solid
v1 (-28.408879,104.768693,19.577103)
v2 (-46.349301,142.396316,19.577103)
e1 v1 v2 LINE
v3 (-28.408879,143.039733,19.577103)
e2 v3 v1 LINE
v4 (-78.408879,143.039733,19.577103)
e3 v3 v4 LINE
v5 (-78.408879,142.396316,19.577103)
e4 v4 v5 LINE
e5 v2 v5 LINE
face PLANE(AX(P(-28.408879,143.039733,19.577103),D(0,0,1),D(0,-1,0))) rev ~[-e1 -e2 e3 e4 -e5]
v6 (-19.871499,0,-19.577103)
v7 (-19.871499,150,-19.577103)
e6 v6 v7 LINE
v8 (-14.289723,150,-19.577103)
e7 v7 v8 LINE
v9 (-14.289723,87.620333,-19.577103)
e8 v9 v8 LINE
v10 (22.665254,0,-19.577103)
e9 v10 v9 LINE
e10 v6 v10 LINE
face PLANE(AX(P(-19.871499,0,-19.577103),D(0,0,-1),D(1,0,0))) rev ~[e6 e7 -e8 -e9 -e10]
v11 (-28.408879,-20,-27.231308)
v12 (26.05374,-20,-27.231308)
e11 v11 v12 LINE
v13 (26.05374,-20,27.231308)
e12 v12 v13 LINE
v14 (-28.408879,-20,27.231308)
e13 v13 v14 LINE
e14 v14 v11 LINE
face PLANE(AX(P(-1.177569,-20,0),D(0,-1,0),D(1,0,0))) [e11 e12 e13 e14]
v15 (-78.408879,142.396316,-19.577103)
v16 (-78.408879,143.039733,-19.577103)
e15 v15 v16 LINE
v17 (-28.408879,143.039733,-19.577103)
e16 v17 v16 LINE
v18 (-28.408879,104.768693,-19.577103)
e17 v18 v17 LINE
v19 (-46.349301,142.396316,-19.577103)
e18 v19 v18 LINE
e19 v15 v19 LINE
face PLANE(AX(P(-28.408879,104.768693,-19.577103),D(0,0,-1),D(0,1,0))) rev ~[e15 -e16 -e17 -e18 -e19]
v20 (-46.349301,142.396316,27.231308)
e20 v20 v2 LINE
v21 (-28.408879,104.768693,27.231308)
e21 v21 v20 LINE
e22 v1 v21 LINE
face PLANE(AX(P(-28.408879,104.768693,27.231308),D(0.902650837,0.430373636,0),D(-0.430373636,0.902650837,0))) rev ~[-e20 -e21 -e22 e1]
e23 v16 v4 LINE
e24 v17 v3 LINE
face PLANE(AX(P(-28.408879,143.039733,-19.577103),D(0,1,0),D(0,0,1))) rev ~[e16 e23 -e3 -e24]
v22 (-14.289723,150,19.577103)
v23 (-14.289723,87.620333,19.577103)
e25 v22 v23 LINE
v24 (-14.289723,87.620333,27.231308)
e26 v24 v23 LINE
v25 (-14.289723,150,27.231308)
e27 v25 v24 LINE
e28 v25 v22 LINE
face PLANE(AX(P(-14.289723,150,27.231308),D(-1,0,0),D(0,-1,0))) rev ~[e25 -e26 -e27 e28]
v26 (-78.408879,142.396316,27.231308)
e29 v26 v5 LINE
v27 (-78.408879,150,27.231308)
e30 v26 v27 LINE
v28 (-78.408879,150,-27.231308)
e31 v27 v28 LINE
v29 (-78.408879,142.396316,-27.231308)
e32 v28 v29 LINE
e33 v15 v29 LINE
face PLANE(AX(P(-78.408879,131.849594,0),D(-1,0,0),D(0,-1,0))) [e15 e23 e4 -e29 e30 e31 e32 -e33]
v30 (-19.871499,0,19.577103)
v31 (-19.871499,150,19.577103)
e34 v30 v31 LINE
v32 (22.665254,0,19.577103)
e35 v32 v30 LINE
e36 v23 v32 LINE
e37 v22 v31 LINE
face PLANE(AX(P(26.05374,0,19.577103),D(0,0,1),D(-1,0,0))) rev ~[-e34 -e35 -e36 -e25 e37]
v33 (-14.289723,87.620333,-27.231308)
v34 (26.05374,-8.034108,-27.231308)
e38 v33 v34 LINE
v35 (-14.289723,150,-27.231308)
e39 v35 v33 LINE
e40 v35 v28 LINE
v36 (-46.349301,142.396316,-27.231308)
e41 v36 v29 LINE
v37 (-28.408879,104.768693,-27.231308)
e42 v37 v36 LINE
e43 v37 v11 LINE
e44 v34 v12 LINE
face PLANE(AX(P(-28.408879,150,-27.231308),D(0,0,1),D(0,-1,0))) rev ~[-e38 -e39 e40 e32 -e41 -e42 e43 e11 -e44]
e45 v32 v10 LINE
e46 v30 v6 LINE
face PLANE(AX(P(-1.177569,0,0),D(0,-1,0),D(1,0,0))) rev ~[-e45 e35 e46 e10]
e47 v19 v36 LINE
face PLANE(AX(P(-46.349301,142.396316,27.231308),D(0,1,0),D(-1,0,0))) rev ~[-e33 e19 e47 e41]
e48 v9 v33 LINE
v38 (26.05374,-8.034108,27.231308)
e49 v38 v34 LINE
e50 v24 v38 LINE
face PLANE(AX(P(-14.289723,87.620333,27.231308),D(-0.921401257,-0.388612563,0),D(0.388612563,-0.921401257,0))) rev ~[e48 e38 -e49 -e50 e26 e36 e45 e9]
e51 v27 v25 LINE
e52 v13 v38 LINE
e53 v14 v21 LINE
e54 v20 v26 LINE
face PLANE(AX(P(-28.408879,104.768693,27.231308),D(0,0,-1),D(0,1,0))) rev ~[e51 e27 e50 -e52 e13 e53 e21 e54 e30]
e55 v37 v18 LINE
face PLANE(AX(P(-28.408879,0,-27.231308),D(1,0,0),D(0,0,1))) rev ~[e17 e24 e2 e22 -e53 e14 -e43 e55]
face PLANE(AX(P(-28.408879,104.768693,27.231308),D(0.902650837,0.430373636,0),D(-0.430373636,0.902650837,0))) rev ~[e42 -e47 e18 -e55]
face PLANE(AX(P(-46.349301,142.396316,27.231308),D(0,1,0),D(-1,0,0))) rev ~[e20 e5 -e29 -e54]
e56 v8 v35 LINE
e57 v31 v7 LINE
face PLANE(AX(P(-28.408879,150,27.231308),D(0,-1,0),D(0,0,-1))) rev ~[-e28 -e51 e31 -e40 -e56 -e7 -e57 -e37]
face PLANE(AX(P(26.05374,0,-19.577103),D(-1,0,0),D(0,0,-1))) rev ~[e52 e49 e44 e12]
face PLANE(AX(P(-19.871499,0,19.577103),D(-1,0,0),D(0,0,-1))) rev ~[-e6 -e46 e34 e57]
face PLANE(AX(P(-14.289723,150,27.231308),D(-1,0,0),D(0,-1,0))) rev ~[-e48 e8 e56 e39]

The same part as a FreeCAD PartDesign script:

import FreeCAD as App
import Part
import Sketcher
Q = App.Units.Quantity


def add_polygon(sketch, points):
    """Adds a closed chain of lines whose ends are joined by coincident constraints."""
    first, n = sketch.GeometryCount, len(points)
    for a, b in zip(points, points[1:] + points[:1]):
        sketch.addGeometry(Part.LineSegment(App.Vector(*a, 0), App.Vector(*b, 0)), False)
    for i in range(n):
        sketch.addConstraint(Sketcher.Constraint("Coincident", first + i, 2, first + (i + 1) % n, 1))

doc = App.newDocument("Part")
body = doc.addObject("PartDesign::Body", "Body")

# Sketch on XZ plane
sketch1 = doc.addObject("Sketcher::SketchObject", "Sketch")
body.addObject(sketch1)
sketch1.AttachmentSupport = (doc.XZ_Plane, [""])
sketch1.MapMode = "FlatFace"
add_polygon(sketch1, [(-28, 27), (-28, -27), (26, -27), (26, 27)])  # lines 0-3
sketch1.addConstraint(Sketcher.Constraint("Vertical", 0))
sketch1.addConstraint(Sketcher.Constraint("Horizontal", 1))
sketch1.addConstraint(Sketcher.Constraint("Vertical", 2))
sketch1.addConstraint(Sketcher.Constraint("Horizontal", 3))
sketch1.addConstraint(Sketcher.Constraint("DistanceX", 1, 1, 1, 2, Q("54.462619 mm")))
sketch1.addConstraint(Sketcher.Constraint("DistanceY", 0, 2, 0, 1, Q("54.462616 mm")))
sketch1.addConstraint(Sketcher.Constraint("DistanceX", 0, 2, -1, 1, Q("28.408879 mm")))
sketch1.addConstraint(Sketcher.Constraint("DistanceY", 0, 2, -1, 1, Q("27.231308 mm")))
pad1 = doc.addObject("PartDesign::Pad", "Pad")
body.addObject(pad1)
pad1.Profile = sketch1
pad1.Length = 20

# Sketch on XZ plane
sketch2 = doc.addObject("Sketcher::SketchObject", "Sketch001")
body.addObject(sketch2)
sketch2.AttachmentSupport = (doc.XZ_Plane, [""])
sketch2.MapMode = "FlatFace"
add_polygon(sketch2, [(-28, -27), (-28, 27), (26, 27), (26, 20), (-20, 20), (-20, -20), (26, -20), (26, -27)])  # lines 0-7
sketch2.addConstraint(Sketcher.Constraint("Vertical", 0))
sketch2.addConstraint(Sketcher.Constraint("Horizontal", 1))
sketch2.addConstraint(Sketcher.Constraint("Vertical", 2))
sketch2.addConstraint(Sketcher.Constraint("Horizontal", 3))
sketch2.addConstraint(Sketcher.Constraint("Vertical", 4))
sketch2.addConstraint(Sketcher.Constraint("Horizontal", 5))
sketch2.addConstraint(Sketcher.Constraint("Vertical", 6))
sketch2.addConstraint(Sketcher.Constraint("Horizontal", 7))
sketch2.addConstraint(Sketcher.Constraint("Symmetric", 2, 2, 5, 2, -1))
sketch2.addConstraint(Sketcher.Constraint("Equal", 2, 6))
sketch2.addConstraint(Sketcher.Constraint("DistanceX", 1, 1, 1, 2, Q("54.462619 mm")))
sketch2.addConstraint(Sketcher.Constraint("DistanceX", 3, 2, 3, 1, Q("45.925239 mm")))
sketch2.addConstraint(Sketcher.Constraint("DistanceX", 3, 2, -1, 1, Q("19.871499 mm")))
sketch2.addConstraint(Sketcher.Constraint("DistanceY", 0, 1, 0, 2, Q("54.462616 mm")))
sketch2.addConstraint(Sketcher.Constraint("DistanceY", 2, 2, 2, 1, Q("7.654205 mm")))
pad2 = doc.addObject("PartDesign::Pad", "Pad001")
body.addObject(pad2)
pad2.Profile = sketch2
pad2.Length = 150
pad2.Reversed = True

# Sketch on YZ plane
sketch3 = doc.addObject("Sketcher::SketchObject", "Sketch002")
body.addObject(sketch3)
sketch3.AttachmentSupport = (doc.YZ_Plane, [""])
sketch3.MapMode = "FlatFace"
sketch3.AttachmentOffset = App.Placement(App.Vector(0, 0, -28.408879), App.Rotation())
add_polygon(sketch3, [(150, 27), (150, -27), (105, -27), (105, -20), (143, -20), (143, 20), (105, 20), (105, 27)])  # lines 0-7
sketch3.addConstraint(Sketcher.Constraint("Vertical", 0))
sketch3.addConstraint(Sketcher.Constraint("Horizontal", 1))
sketch3.addConstraint(Sketcher.Constraint("Vertical", 2))
sketch3.addConstraint(Sketcher.Constraint("Horizontal", 3))
sketch3.addConstraint(Sketcher.Constraint("Vertical", 4))
sketch3.addConstraint(Sketcher.Constraint("Horizontal", 5))
sketch3.addConstraint(Sketcher.Constraint("Vertical", 6))
sketch3.addConstraint(Sketcher.Constraint("Horizontal", 7))
sketch3.addConstraint(Sketcher.Constraint("Symmetric", 2, 2, 5, 2, -1))
sketch3.addConstraint(Sketcher.Constraint("Equal", 2, 6))
sketch3.addConstraint(Sketcher.Constraint("DistanceX", -1, 1, 0, 2, Q("150 mm")))
sketch3.addConstraint(Sketcher.Constraint("DistanceX", 3, 1, 3, 2, Q("38.27104 mm")))
sketch3.addConstraint(Sketcher.Constraint("DistanceX", 1, 2, 1, 1, Q("45.231307 mm")))
sketch3.addConstraint(Sketcher.Constraint("DistanceY", 0, 2, 0, 1, Q("54.462616 mm")))
sketch3.addConstraint(Sketcher.Constraint("DistanceY", 2, 1, 2, 2, Q("7.654205 mm")))
pad3 = doc.addObject("PartDesign::Pad", "Pad002")
body.addObject(pad3)
pad3.Profile = sketch3
pad3.Length = 50
pad3.Reversed = True

# Sketch on XY plane
sketch4 = doc.addObject("Sketcher::SketchObject", "Sketch003")
body.addObject(sketch4)
sketch4.AttachmentSupport = (doc.XY_Plane, [""])
sketch4.MapMode = "FlatFace"
sketch4.AttachmentOffset = App.Placement(App.Vector(0, 0, 27.231308), App.Rotation())
add_polygon(sketch4, [(-14, 88), (26, -8), (26, 150), (-14, 150)])  # lines 0-3
sketch4.addConstraint(Sketcher.Constraint("Vertical", 1))
sketch4.addConstraint(Sketcher.Constraint("Horizontal", 2))
sketch4.addConstraint(Sketcher.Constraint("Vertical", 3))
sketch4.addConstraint(Sketcher.Constraint("DistanceY", -1, 1, 1, 2, Q("150 mm")))
sketch4.addConstraint(Sketcher.Constraint("Distance", 0, Q("103.814099 mm")))
sketch4.addConstraint(Sketcher.Constraint("DistanceY", 1, 1, 1, 2, Q("158.034108 mm")))
sketch4.addConstraint(Sketcher.Constraint("DistanceX", 2, 2, 2, 1, Q("40.343463 mm")))
sketch4.addConstraint(Sketcher.Constraint("DistanceX", -1, 1, 0, 2, Q("26.05374 mm")))
pocket1 = doc.addObject("PartDesign::Pocket", "Pocket")
body.addObject(pocket1)
pocket1.Profile = sketch4
pocket1.Type = "ThroughAll"

# Sketch on XY plane
sketch5 = doc.addObject("Sketcher::SketchObject", "Sketch004")
body.addObject(sketch5)
sketch5.AttachmentSupport = (doc.XY_Plane, [""])
sketch5.MapMode = "FlatFace"
sketch5.AttachmentOffset = App.Placement(App.Vector(0, 0, 27.231308), App.Rotation())
add_polygon(sketch5, [(-78, 105), (-28, 105), (-46, 142), (-78, 142)])  # lines 0-3
sketch5.addConstraint(Sketcher.Constraint("Horizontal", 0))
sketch5.addConstraint(Sketcher.Constraint("Horizontal", 2))
sketch5.addConstraint(Sketcher.Constraint("Vertical", 3))
sketch5.addConstraint(Sketcher.Constraint("DistanceX", 0, 1, 0, 2, Q("50 mm")))
sketch5.addConstraint(Sketcher.Constraint("DistanceX", 2, 2, 2, 1, Q("32.059578 mm")))
sketch5.addConstraint(Sketcher.Constraint("DistanceX", 1, 2, -1, 1, Q("46.349301 mm")))
sketch5.addConstraint(Sketcher.Constraint("Distance", 1, Q("41.68569 mm")))
sketch5.addConstraint(Sketcher.Constraint("DistanceY", -1, 1, 0, 2, Q("104.768693 mm")))
pocket2 = doc.addObject("PartDesign::Pocket", "Pocket001")
body.addObject(pocket2)
pocket2.Profile = sketch5
pocket2.Type = "ThroughAll"

doc.recompute()
